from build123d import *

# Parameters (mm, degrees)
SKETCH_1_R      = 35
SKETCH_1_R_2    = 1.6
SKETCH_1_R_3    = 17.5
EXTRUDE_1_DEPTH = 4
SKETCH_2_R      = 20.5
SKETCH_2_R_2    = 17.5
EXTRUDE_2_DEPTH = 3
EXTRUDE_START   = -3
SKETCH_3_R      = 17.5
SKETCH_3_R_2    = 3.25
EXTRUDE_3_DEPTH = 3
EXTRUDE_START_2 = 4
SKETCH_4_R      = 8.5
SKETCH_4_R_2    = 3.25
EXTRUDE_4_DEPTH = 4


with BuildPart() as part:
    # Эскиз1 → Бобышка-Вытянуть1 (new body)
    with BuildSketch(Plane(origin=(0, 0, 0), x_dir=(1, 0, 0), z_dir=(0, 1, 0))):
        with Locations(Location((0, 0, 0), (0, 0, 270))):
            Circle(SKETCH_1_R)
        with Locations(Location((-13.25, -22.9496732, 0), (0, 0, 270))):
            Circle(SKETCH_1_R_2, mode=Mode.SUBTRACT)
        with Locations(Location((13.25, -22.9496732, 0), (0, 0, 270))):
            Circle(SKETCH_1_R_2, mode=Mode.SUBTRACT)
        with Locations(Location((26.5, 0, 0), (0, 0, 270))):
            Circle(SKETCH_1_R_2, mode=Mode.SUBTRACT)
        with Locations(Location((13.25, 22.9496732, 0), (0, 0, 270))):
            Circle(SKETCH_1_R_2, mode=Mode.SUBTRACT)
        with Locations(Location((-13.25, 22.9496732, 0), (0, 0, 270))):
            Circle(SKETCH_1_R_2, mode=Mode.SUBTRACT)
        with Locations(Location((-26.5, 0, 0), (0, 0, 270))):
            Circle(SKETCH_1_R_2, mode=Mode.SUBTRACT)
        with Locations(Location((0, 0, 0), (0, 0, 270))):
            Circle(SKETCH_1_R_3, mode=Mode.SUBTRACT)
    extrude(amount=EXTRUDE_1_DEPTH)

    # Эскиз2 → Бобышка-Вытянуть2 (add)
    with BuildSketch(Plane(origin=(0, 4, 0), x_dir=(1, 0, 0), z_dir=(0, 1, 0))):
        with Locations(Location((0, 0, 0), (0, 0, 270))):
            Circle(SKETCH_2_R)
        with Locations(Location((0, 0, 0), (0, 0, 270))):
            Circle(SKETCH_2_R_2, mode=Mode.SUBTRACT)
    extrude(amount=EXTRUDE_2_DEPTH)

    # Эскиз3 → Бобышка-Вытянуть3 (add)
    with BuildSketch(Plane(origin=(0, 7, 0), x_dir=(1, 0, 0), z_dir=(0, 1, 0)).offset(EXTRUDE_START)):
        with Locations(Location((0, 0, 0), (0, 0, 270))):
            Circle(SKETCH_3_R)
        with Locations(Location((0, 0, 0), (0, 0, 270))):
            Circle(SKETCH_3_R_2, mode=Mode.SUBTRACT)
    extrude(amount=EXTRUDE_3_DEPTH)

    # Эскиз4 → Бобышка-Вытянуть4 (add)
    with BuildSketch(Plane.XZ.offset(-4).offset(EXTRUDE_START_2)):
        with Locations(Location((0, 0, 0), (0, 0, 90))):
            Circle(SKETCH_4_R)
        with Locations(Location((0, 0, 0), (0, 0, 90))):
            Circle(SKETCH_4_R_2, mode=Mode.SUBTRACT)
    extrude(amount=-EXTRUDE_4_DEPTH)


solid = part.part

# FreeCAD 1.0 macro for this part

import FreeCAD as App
import Part
import Sketcher

V = App.Vector

doc = App.newDocument("Part")
body = doc.addObject("PartDesign::Body", "Body")

sketch1 = body.newObject("Sketcher::SketchObject", "Sketch")
sketch1.AttachmentSupport = (doc.getObject("XZ_Plane"), [""])
sketch1.MapMode = "FlatFace"
sketch1.addGeometry([
    Part.Circle(V(0, 0, 0), V(0, 0, 1), 35),
    Part.Circle(V(-13.2, -22.9, 0), V(0, 0, 1), 1.6),
    Part.Circle(V(-26.5, 0, 0), V(0, 0, 1), 1.6),
    Part.Circle(V(-13.2, 22.9, 0), V(0, 0, 1), 1.6),
    Part.Circle(V(13.2, -22.9, 0), V(0, 0, 1), 1.6),
    Part.Circle(V(0, 0, 0), V(0, 0, 1), 17.5),
    Part.Circle(V(26.5, 0, 0), V(0, 0, 1), 1.6),
    Part.Circle(V(13.2, 22.9, 0), V(0, 0, 1), 1.6),
], False)
sketch1.addConstraint([
    Sketcher.Constraint("Coincident", 0, 3, -1, 1),
    Sketcher.Constraint("Coincident", 5, 3, -1, 1),
    Sketcher.Constraint("Equal", 1, 2),
    Sketcher.Constraint("Equal", 2, 3),
    Sketcher.Constraint("Equal", 3, 4),
    Sketcher.Constraint("Equal", 4, 6),
    Sketcher.Constraint("Equal", 6, 7),
    Sketcher.Constraint("Symmetric", 3, 3, 4, 3, -1, 1),
    Sketcher.Constraint("Symmetric", 2, 3, 6, 3, -1, 1),
    Sketcher.Constraint("Symmetric", 1, 3, 7, 3, -1, 1),
    Sketcher.Constraint("Symmetric", 1, 3, 4, 3, -2),
    Sketcher.Constraint("PointOnObject", 2, 3, -1),
    Sketcher.Constraint("Diameter", 0, 70.0),
    Sketcher.Constraint("Diameter", 5, 35.0),
    Sketcher.Constraint("Diameter", 1, 3.2),
    Sketcher.Constraint("DistanceX", 2, 3, -1, 1, 26.5),
    Sketcher.Constraint("DistanceX", 1, 3, 4, 3, 26.5),
    Sketcher.Constraint("DistanceY", 1, 3, -1, 1, 22.949673),
])
pad1 = body.newObject("PartDesign::Pad", "Pad")
pad1.Profile = sketch1
pad1.Length = 4
pad1.Reversed = True

sketch2 = body.newObject("Sketcher::SketchObject", "Sketch001")
sketch2.AttachmentSupport = (doc.getObject("XZ_Plane"), [""])
sketch2.MapMode = "FlatFace"
sketch2.AttachmentOffset = App.Placement(V(0, 0, -4), App.Rotation())
sketch2.addGeometry([
    Part.Circle(V(0, 0, 0), V(0, 0, 1), 20),
    Part.Circle(V(0, 0, 0), V(0, 0, 1), 18),
], False)
sketch2.addConstraint([
    Sketcher.Constraint("Coincident", 0, 3, -1, 1),
    Sketcher.Constraint("Coincident", 1, 3, -1, 1),
    Sketcher.Constraint("Diameter", 0, 41.0),
    Sketcher.Constraint("Diameter", 1, 35.0),
])
pad2 = body.newObject("PartDesign::Pad", "Pad001")
pad2.Profile = sketch2
pad2.Length = 3
pad2.Reversed = True

sketch3 = body.newObject("Sketcher::SketchObject", "Sketch002")
sketch3.AttachmentSupport = (doc.getObject("XZ_Plane"), [""])
sketch3.MapMode = "FlatFace"
sketch3.AttachmentOffset = App.Placement(V(0, 0, -4), App.Rotation())
sketch3.addGeometry([
    Part.Circle(V(0, 0, 0), V(0, 0, 1), 17.5),
    Part.Circle(V(0, 0, 0), V(0, 0, 1), 3.2),
], False)
sketch3.addConstraint([
    Sketcher.Constraint("Coincident", 0, 3, -1, 1),
    Sketcher.Constraint("Coincident", 1, 3, -1, 1),
    Sketcher.Constraint("Diameter", 0, 35.0),
    Sketcher.Constraint("Diameter", 1, 6.5),
])
pad3 = body.newObject("PartDesign::Pad", "Pad002")
pad3.Profile = sketch3
pad3.Length = 3
pad3.Reversed = True

sketch4 = body.newObject("Sketcher::SketchObject", "Sketch003")
sketch4.AttachmentSupport = (doc.getObject("XZ_Plane"), [""])
sketch4.MapMode = "FlatFace"
sketch4.addGeometry([
    Part.Circle(V(0, 0, 0), V(0, 0, 1), 8.5),
    Part.Circle(V(0, 0, 0), V(0, 0, 1), 3.2),
], False)
sketch4.addConstraint([
    Sketcher.Constraint("Coincident", 0, 3, -1, 1),
    Sketcher.Constraint("Coincident", 1, 3, -1, 1),
    Sketcher.Constraint("Diameter", 0, 17.0),
    Sketcher.Constraint("Diameter", 1, 6.5),
])
pad4 = body.newObject("PartDesign::Pad", "Pad003")
pad4.Profile = sketch4
pad4.Length = 4
pad4.Reversed = True

doc.recompute()
